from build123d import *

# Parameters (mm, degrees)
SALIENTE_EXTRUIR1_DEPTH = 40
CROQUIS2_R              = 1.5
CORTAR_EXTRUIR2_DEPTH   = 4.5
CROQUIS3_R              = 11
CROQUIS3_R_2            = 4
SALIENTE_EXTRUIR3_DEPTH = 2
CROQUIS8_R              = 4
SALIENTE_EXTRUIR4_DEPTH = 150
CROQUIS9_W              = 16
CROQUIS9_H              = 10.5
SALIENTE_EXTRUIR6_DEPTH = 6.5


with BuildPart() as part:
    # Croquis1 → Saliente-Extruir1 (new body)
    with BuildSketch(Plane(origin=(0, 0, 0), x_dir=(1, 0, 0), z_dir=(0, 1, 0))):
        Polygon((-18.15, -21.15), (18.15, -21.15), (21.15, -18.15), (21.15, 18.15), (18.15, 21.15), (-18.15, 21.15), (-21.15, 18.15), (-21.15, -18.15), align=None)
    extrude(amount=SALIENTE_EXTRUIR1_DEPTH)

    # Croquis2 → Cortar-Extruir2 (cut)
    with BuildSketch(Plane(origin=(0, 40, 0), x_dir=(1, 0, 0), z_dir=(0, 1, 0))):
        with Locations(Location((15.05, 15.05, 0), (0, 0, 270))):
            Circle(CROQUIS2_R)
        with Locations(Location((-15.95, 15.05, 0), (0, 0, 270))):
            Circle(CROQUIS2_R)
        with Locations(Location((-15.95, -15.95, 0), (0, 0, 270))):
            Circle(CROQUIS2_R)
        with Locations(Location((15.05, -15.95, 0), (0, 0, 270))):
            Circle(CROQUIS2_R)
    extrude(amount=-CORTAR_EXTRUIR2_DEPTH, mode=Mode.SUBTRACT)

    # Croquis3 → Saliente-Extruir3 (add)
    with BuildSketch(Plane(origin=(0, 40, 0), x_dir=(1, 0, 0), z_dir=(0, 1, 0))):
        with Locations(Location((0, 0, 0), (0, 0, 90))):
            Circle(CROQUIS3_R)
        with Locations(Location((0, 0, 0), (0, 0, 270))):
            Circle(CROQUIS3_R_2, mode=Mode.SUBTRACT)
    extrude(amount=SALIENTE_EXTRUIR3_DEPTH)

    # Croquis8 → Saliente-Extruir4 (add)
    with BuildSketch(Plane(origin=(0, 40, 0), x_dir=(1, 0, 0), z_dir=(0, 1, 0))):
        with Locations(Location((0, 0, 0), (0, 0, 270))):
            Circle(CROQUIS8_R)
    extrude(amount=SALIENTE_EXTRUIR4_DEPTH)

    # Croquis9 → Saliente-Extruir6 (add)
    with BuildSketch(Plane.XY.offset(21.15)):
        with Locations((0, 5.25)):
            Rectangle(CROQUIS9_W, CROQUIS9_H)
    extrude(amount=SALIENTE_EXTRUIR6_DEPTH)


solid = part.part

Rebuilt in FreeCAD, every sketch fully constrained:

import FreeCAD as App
import Part
import Sketcher

V = App.Vector
Q = App.Units.Quantity

doc = App.newDocument("Part")
params = doc.addObject("Spreadsheet::Sheet", "Params")
for row, (alias, value) in enumerate([
    ("sketch1_width", "36.3 mm"),
    ("pad1_length", "40 mm"),
    ("sketch2_diameter", "3 mm"),
    ("pocket1_length", "4.5 mm"),
    ("sketch3_diameter", "22 mm"),
    ("sketch3_diameter2", "8 mm"),
    ("pad2_length", "2 mm"),
    ("sketch4_diameter", "8 mm"),
    ("pad3_length", "150 mm"),
    ("sketch5_width", "16 mm"),
    ("sketch5_height", "10.5 mm"),
    ("pad4_length", "6.5 mm"),
], start=1):
    params.set(f"A{row}", alias)
    params.set(f"B{row}", "=" + value)
    params.setAlias(f"B{row}", alias)

body = doc.addObject("PartDesign::Body", "Body")

# Sketch on XZ plane
sketch1 = doc.addObject("Sketcher::SketchObject", "Sketch")
body.addObject(sketch1)
sketch1.AttachmentSupport = (doc.XZ_Plane, [""])
sketch1.MapMode = "FlatFace"
sketch1.addGeometry([
    Part.LineSegment(V(-18.1, 21.1, 0), V(18.1, 21.1, 0)),  # 0
    Part.LineSegment(V(18.1, 21.1, 0), V(21.1, 18.1, 0)),  # 1
    Part.LineSegment(V(21.1, 18.1, 0), V(21.1, -18.1, 0)),  # 2
    Part.LineSegment(V(21.1, -18.1, 0), V(18.1, -21.1, 0)),  # 3
    Part.LineSegment(V(18.1, -21.1, 0), V(-18.1, -21.1, 0)),  # 4
    Part.LineSegment(V(-18.1, -21.1, 0), V(-21.1, -18.1, 0)),  # 5
    Part.LineSegment(V(-21.1, -18.1, 0), V(-21.1, 18.1, 0)),  # 6
    Part.LineSegment(V(-21.1, 18.1, 0), V(-18.1, 21.1, 0)),  # 7
], False)
sketch1.addConstraint([
    Sketcher.Constraint("Coincident", 0, 2, 1, 1),
    Sketcher.Constraint("Coincident", 1, 2, 2, 1),
    Sketcher.Constraint("Coincident", 2, 2, 3, 1),
    Sketcher.Constraint("Coincident", 3, 2, 4, 1),
    Sketcher.Constraint("Coincident", 4, 2, 5, 1),
    Sketcher.Constraint("Coincident", 5, 2, 6, 1),
    Sketcher.Constraint("Coincident", 6, 2, 7, 1),
    Sketcher.Constraint("Coincident", 7, 2, 0, 1),
    Sketcher.Constraint("Horizontal", 0),
    Sketcher.Constraint("Vertical", 2),
    Sketcher.Constraint("Horizontal", 4),
    Sketcher.Constraint("Vertical", 6),
    Sketcher.Constraint("Symmetric", 0, 2, 4, 2, -1, 1),
    Sketcher.Constraint("Symmetric", 1, 2, 5, 2, -1, 1),
    Sketcher.Constraint("Perpendicular", 1, 3),
    Sketcher.Constraint("Perpendicular", 5, 7),
    Sketcher.Constraint("Horizontal", 2, 2, 5, 2),
    Sketcher.Constraint("Horizontal", 1, 2, 6, 2),
    Sketcher.Constraint("Vertical", 0, 2, 3, 2),
    Sketcher.Constraint("Equal", 4, 2),
    Sketcher.Constraint("DistanceX", 0, 1, 0, 2, Q("36.3 mm")),
    Sketcher.Constraint("DistanceX", 0, 2, 1, 2, Q("3 mm")),
])
sketch1.setExpression("Constraints[20]", "Params.sketch1_width")
pad1 = doc.addObject("PartDesign::Pad", "Pad")
body.addObject(pad1)
pad1.Profile = sketch1
pad1.setExpression("Length", "Params.pad1_length")
pad1.Reversed = True

# Sketch on XZ plane
sketch2 = doc.addObject("Sketcher::SketchObject", "Sketch001")
body.addObject(sketch2)
sketch2.AttachmentSupport = (doc.XZ_Plane, [""])
sketch2.MapMode = "FlatFace"
sketch2.AttachmentOffset = App.Placement(V(0, 0, -40), App.Rotation())
sketch2.addGeometry([
    Part.Circle(V(15.1, -15.1, 0), V(0, 0, 1), 1.5),
    Part.Circle(V(-15.9, -15.1, 0), V(0, 0, 1), 1.5),
    Part.Circle(V(-15.9, 15.9, 0), V(0, 0, 1), 1.5),
    Part.Circle(V(15.1, 15.9, 0), V(0, 0, 1), 1.5),
], False)
sketch2.addConstraint([
    Sketcher.Constraint("Equal", 0, 1),
    Sketcher.Constraint("Equal", 1, 2),
    Sketcher.Constraint("Equal", 2, 3),
    Sketcher.Constraint("Horizontal", 0, 3, 1, 3),
    Sketcher.Constraint("Horizontal", 2, 3, 3, 3),
    Sketcher.Constraint("Vertical", 1, 3, 2, 3),
    Sketcher.Constraint("Vertical", 0, 3, 3, 3),
    Sketcher.Constraint("Diameter", 0, Q("3 mm")),
    Sketcher.Constraint("DistanceX", 1, 3, 0, 3, Q("31 mm")),
    Sketcher.Constraint("DistanceY", 1, 3, 2, 3, Q("31 mm")),
    Sketcher.Constraint("DistanceX", -1, 1, 0, 3, Q("15.05 mm")),
    Sketcher.Constraint("DistanceY", 0, 3, -1, 1, Q("15.05 mm")),
])
sketch2.setExpression("Constraints[7]", "Params.sketch2_diameter")
pocket1 = doc.addObject("PartDesign::Pocket", "Pocket")
body.addObject(pocket1)
pocket1.Profile = sketch2
pocket1.setExpression("Length", "Params.pocket1_length")
pocket1.Reversed = True

# Sketch on XZ plane
sketch3 = doc.addObject("Sketcher::SketchObject", "Sketch002")
body.addObject(sketch3)
sketch3.AttachmentSupport = (doc.XZ_Plane, [""])
sketch3.MapMode = "FlatFace"
sketch3.AttachmentOffset = App.Placement(V(0, 0, -40), App.Rotation())
sketch3.addGeometry([
    Part.Circle(V(0, 0, 0), V(0, 0, 1), 11),
    Part.Circle(V(0, 0, 0), V(0, 0, 1), 4),
], False)
sketch3.addConstraint([
    Sketcher.Constraint("Coincident", 0, 3, -1, 1),
    Sketcher.Constraint("Coincident", 1, 3, -1, 1),
    Sketcher.Constraint("Diameter", 0, Q("22 mm")),
    Sketcher.Constraint("Diameter", 1, Q("8 mm")),
])
sketch3.setExpression("Constraints[2]", "Params.sketch3_diameter")
sketch3.setExpression("Constraints[3]", "Params.sketch3_diameter2")
pad2 = doc.addObject("PartDesign::Pad", "Pad001")
body.addObject(pad2)
pad2.Profile = sketch3
pad2.setExpression("Length", "Params.pad2_length")
pad2.Reversed = True

# Sketch on XZ plane
sketch4 = doc.addObject("Sketcher::SketchObject", "Sketch003")
body.addObject(sketch4)
sketch4.AttachmentSupport = (doc.XZ_Plane, [""])
sketch4.MapMode = "FlatFace"
sketch4.AttachmentOffset = App.Placement(V(0, 0, -40), App.Rotation())
sketch4.addGeometry(Part.Circle(V(0, 0, 0), V(0, 0, 1), 4), False)
sketch4.addConstraint([
    Sketcher.Constraint("Coincident", 0, 3, -1, 1),
    Sketcher.Constraint("Diameter", 0, Q("8 mm")),
])
sketch4.setExpression("Constraints[1]", "Params.sketch4_diameter")
pad3 = doc.addObject("PartDesign::Pad", "Pad002")
body.addObject(pad3)
pad3.Profile = sketch4
pad3.setExpression("Length", "Params.pad3_length")
pad3.Reversed = True

# Sketch on XY plane
sketch5 = doc.addObject("Sketcher::SketchObject", "Sketch004")
body.addObject(sketch5)
sketch5.AttachmentSupport = (doc.XY_Plane, [""])
sketch5.MapMode = "FlatFace"
sketch5.AttachmentOffset = App.Placement(V(0, 0, 21.15), App.Rotation())
sketch5.addGeometry([
    Part.LineSegment(V(-8, 10, 0), V(-8, 0, 0)),
    Part.LineSegment(V(-8, 0, 0), V(8, 0, 0)),
    Part.LineSegment(V(8, 0, 0), V(8, 10, 0)),
    Part.LineSegment(V(8, 10, 0), V(-8, 10, 0)),
], False)
sketch5.addConstraint([
    Sketcher.Constraint("Coincident", 0, 2, 1, 1),
    Sketcher.Constraint("Coincident", 1, 2, 2, 1),
    Sketcher.Constraint("Coincident", 2, 2, 3, 1),
    Sketcher.Constraint("Coincident", 3, 2, 0, 1),
    Sketcher.Constraint("Vertical", 0),
    Sketcher.Constraint("Horizontal", 1),
    Sketcher.Constraint("Vertical", 2),
    Sketcher.Constraint("Horizontal", 3),
    Sketcher.Constraint("Symmetric", 0, 2, 1, 2, -1, 1),
    Sketcher.Constraint("DistanceX", 1, 1, 1, 2, Q("16 mm")),
    Sketcher.Constraint("DistanceY", 0, 2, 0, 1, Q("10.5 mm")),
])
sketch5.setExpression("Constraints[9]", "Params.sketch5_width")
sketch5.setExpression("Constraints[10]", "Params.sketch5_height")
pad4 = doc.addObject("PartDesign::Pad", "Pad003")
body.addObject(pad4)
pad4.Profile = sketch5
pad4.setExpression("Length", "Params.pad4_length")

doc.recompute()
